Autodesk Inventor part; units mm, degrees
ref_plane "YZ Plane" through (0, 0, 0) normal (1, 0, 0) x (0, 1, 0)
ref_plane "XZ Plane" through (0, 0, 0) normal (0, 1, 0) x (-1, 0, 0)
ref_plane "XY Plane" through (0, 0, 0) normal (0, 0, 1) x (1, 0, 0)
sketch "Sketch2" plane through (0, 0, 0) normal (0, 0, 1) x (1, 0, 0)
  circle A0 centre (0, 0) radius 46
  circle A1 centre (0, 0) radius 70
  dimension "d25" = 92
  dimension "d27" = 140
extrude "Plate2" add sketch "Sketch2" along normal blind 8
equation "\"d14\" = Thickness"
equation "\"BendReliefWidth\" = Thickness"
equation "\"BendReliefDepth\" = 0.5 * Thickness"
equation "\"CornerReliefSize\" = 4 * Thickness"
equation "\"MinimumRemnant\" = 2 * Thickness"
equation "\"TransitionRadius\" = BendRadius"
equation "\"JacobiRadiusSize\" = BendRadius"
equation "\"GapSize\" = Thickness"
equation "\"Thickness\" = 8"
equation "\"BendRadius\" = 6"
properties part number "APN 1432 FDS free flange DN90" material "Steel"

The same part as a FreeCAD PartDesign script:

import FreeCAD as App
import Part
import Sketcher

doc = App.newDocument("Part")
body = doc.addObject("PartDesign::Body", "Body")

# Sketch on XY plane
sketch1 = doc.addObject("Sketcher::SketchObject", "Sketch")
body.addObject(sketch1)
sketch1.AttachmentSupport = (doc.XY_Plane, [""])
sketch1.MapMode = "FlatFace"
sketch1.addGeometry([
    Part.Circle(App.Vector(0, 0, 0), App.Vector(0, 0, 1), 70),
    Part.Circle(App.Vector(0, 0, 0), App.Vector(0, 0, 1), 46),
], False)
sketch1.addConstraint([
    Sketcher.Constraint("Coincident", 0, 3, -1, 1),
    Sketcher.Constraint("Coincident", 1, 3, -1, 1),
    Sketcher.Constraint("Diameter", 0, 140.0),
    Sketcher.Constraint("Diameter", 1, 92.0),
])
pad1 = doc.addObject("PartDesign::Pad", "Pad")
body.addObject(pad1)
pad1.Profile = sketch1
pad1.Length = 8

doc.recompute()
